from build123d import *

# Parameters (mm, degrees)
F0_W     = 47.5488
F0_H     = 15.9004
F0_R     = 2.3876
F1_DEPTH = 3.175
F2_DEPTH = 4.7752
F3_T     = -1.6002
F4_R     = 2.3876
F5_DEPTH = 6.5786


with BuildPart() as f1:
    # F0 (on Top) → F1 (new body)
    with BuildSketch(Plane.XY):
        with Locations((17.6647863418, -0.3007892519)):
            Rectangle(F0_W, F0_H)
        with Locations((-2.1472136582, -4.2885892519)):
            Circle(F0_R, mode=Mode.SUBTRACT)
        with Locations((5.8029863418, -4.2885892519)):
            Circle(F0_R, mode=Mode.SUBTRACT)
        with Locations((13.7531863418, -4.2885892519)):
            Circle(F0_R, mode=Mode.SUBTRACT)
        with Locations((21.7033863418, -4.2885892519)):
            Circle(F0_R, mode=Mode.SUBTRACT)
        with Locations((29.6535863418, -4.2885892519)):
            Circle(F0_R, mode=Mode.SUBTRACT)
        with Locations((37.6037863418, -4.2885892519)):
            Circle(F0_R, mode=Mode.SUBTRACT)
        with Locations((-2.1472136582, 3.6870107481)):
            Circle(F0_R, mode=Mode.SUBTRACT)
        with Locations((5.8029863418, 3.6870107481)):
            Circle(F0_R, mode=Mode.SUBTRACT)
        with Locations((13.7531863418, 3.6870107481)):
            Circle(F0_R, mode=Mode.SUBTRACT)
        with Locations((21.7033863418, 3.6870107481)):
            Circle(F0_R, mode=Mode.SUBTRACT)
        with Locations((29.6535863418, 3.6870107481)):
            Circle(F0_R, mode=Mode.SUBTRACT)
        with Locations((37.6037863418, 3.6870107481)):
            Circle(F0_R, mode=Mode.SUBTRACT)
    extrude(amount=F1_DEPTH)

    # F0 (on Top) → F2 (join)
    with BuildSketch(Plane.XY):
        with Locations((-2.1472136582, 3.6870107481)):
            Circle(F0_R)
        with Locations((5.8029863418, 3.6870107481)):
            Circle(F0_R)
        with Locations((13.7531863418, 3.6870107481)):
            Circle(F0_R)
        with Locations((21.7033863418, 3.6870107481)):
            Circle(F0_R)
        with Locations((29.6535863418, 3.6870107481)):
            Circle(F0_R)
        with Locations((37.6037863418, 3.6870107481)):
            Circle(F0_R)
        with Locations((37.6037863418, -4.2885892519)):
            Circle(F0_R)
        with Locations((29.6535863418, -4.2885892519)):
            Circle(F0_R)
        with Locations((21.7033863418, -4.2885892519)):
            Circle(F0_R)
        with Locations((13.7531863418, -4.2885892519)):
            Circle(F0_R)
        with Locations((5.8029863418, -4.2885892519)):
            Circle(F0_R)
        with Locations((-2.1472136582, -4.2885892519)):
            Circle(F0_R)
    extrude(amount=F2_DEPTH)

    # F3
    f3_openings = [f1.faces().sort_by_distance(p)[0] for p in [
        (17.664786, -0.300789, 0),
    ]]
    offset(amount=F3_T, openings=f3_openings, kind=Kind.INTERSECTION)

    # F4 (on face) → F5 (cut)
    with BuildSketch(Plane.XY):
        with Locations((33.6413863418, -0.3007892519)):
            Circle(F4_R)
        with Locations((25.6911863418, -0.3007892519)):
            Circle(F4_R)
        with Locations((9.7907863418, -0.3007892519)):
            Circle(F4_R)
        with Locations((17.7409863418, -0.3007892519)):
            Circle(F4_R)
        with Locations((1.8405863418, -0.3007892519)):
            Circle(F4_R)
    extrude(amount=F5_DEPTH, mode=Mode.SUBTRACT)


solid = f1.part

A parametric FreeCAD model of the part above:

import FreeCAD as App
import Part
import Sketcher
from FreeCAD import Vector
Q = App.Units.Quantity


def faces_at(feature, points):
    """Names of the faces that lie closest to the given points."""
    faces = feature.Shape.Faces
    near = lambda p: min(range(len(faces)), key=lambda i: faces[i].distToShape(Part.Vertex(*p))[0])
    return sorted({f"Face{near(p) + 1}" for p in points})


def add_polygon(sketch, points):
    """Adds a closed chain of lines whose ends are joined by coincident constraints."""
    first, n = sketch.GeometryCount, len(points)
    for a, b in zip(points, points[1:] + points[:1]):
        sketch.addGeometry(Part.LineSegment(App.Vector(*a, 0), App.Vector(*b, 0)), False)
    for i in range(n):
        sketch.addConstraint(Sketcher.Constraint("Coincident", first + i, 2, first + (i + 1) % n, 1))

doc = App.newDocument("Part")
body = doc.addObject("PartDesign::Body", "Body")

# Sketch on XY plane
sketch1 = body.newObject("Sketcher::SketchObject", "Sketch")
sketch1.AttachmentSupport = (doc.getObject("XY_Plane"), [""])
sketch1.MapMode = "FlatFace"
add_polygon(sketch1, [(-6.109614, 7.649411), (-6.109614, -8.250989), (41.439186, -8.250989), (41.439186, 7.649411)])  # lines 0-3
sketch1.addGeometry(Part.Circle(Vector(-2.147214, -4.288589, 0), Vector(0, 0, 1), 2.3876), False)  # 4
sketch1.addGeometry(Part.Circle(Vector(5.802986, -4.288589, 0), Vector(0, 0, 1), 2.3876), False)  # 5
sketch1.addGeometry(Part.Circle(Vector(13.753186, -4.288589, 0), Vector(0, 0, 1), 2.3876), False)  # 6
sketch1.addGeometry(Part.Circle(Vector(21.703386, -4.288589, 0), Vector(0, 0, 1), 2.3876), False)  # 7
sketch1.addGeometry(Part.Circle(Vector(29.653586, -4.288589, 0), Vector(0, 0, 1), 2.3876), False)  # 8
sketch1.addGeometry(Part.Circle(Vector(37.603786, -4.288589, 0), Vector(0, 0, 1), 2.3876), False)  # 9
sketch1.addGeometry(Part.Circle(Vector(-2.147214, 3.687011, 0), Vector(0, 0, 1), 2.3876), False)  # 10
sketch1.addGeometry(Part.Circle(Vector(5.802986, 3.687011, 0), Vector(0, 0, 1), 2.3876), False)  # 11
sketch1.addGeometry(Part.Circle(Vector(13.753186, 3.687011, 0), Vector(0, 0, 1), 2.3876), False)  # 12
sketch1.addGeometry(Part.Circle(Vector(21.703386, 3.687011, 0), Vector(0, 0, 1), 2.3876), False)  # 13
sketch1.addGeometry(Part.Circle(Vector(29.653586, 3.687011, 0), Vector(0, 0, 1), 2.3876), False)  # 14
sketch1.addGeometry(Part.Circle(Vector(37.603786, 3.687011, 0), Vector(0, 0, 1), 2.3876), False)  # 15
sketch1.addConstraint([
    Sketcher.Constraint("Vertical", 0),
    Sketcher.Constraint("Horizontal", 1),
    Sketcher.Constraint("Vertical", 2),
    Sketcher.Constraint("Horizontal", 3),
    Sketcher.Constraint("Equal", 4, 5),
    Sketcher.Constraint("Equal", 5, 6),
    Sketcher.Constraint("Equal", 6, 7),
    Sketcher.Constraint("Equal", 7, 8),
    Sketcher.Constraint("Equal", 8, 9),
    Sketcher.Constraint("Equal", 9, 10),
    Sketcher.Constraint("Equal", 10, 11),
    Sketcher.Constraint("Equal", 11, 12),
    Sketcher.Constraint("Equal", 12, 13),
    Sketcher.Constraint("Equal", 13, 14),
    Sketcher.Constraint("Equal", 14, 15),
    Sketcher.Constraint("Horizontal", 4, 3, 5, 3),
    Sketcher.Constraint("Horizontal", 5, 3, 6, 3),
    Sketcher.Constraint("Horizontal", 6, 3, 7, 3),
    Sketcher.Constraint("Horizontal", 7, 3, 8, 3),
    Sketcher.Constraint("Horizontal", 8, 3, 9, 3),
    Sketcher.Constraint("Horizontal", 10, 3, 11, 3),
    Sketcher.Constraint("Horizontal", 11, 3, 12, 3),
    Sketcher.Constraint("Horizontal", 12, 3, 13, 3),
    Sketcher.Constraint("Horizontal", 13, 3, 14, 3),
    Sketcher.Constraint("Horizontal", 14, 3, 15, 3),
    Sketcher.Constraint("Vertical", 4, 3, 10, 3),
    Sketcher.Constraint("Vertical", 5, 3, 11, 3),
    Sketcher.Constraint("Vertical", 6, 3, 12, 3),
    Sketcher.Constraint("Vertical", 7, 3, 13, 3),
    Sketcher.Constraint("Vertical", 8, 3, 14, 3),
    Sketcher.Constraint("Vertical", 9, 3, 15, 3),
    Sketcher.Constraint("Diameter", 4, Q("0.188 in")),
    Sketcher.Constraint("DistanceX", 1, 1, 1, 2, Q("1.872 in")),
    Sketcher.Constraint("DistanceY", 0, 2, 0, 1, Q("0.626 in")),
    Sketcher.Constraint("DistanceY", 0, 2, 10, 3, Q("0.47 in")),
    Sketcher.Constraint("DistanceY", 9, 3, 2, 2, Q("0.47 in")),
    Sketcher.Constraint("DistanceX", 4, 3, 5, 3, Q("0.313 in")),
    Sketcher.Constraint("DistanceX", 5, 3, 6, 3, Q("0.313 in")),
    Sketcher.Constraint("DistanceX", 6, 3, 7, 3, Q("0.313 in")),
    Sketcher.Constraint("DistanceX", 7, 3, 8, 3, Q("0.313 in")),
    Sketcher.Constraint("DistanceX", 8, 3, 9, 3, Q("0.313 in")),
    Sketcher.Constraint("DistanceX", 0, 2, 4, 3, Q("0.156 in")),
    Sketcher.Constraint("DistanceY", 4, 3, -1, 1, 4.288589),
    Sketcher.Constraint("DistanceX", 4, 3, -1, 1, 2.147214),
])
pad1 = body.newObject("PartDesign::Pad", "Pad")
pad1.Profile = sketch1
pad1.Length = Q("0.125 in")

# Sketch on XY plane
sketch2 = body.newObject("Sketcher::SketchObject", "Sketch001")
sketch2.AttachmentSupport = (doc.getObject("XY_Plane"), [""])
sketch2.MapMode = "FlatFace"
sketch2.addGeometry([
    Part.Circle(Vector(-2.147214, 3.687011, 0), Vector(0, 0, 1), 2.3876),  # 0
    Part.Circle(Vector(5.802986, 3.687011, 0), Vector(0, 0, 1), 2.3876),  # 1
    Part.Circle(Vector(13.753186, 3.687011, 0), Vector(0, 0, 1), 2.3876),  # 2
    Part.Circle(Vector(21.703386, 3.687011, 0), Vector(0, 0, 1), 2.3876),  # 3
    Part.Circle(Vector(29.653586, 3.687011, 0), Vector(0, 0, 1), 2.3876),  # 4
    Part.Circle(Vector(37.603786, 3.687011, 0), Vector(0, 0, 1), 2.3876),  # 5
    Part.Circle(Vector(37.603786, -4.288589, 0), Vector(0, 0, 1), 2.3876),  # 6
    Part.Circle(Vector(29.653586, -4.288589, 0), Vector(0, 0, 1), 2.3876),  # 7
    Part.Circle(Vector(21.703386, -4.288589, 0), Vector(0, 0, 1), 2.3876),  # 8
    Part.Circle(Vector(13.753186, -4.288589, 0), Vector(0, 0, 1), 2.3876),  # 9
    Part.Circle(Vector(5.802986, -4.288589, 0), Vector(0, 0, 1), 2.3876),  # 10
    Part.Circle(Vector(-2.147214, -4.288589, 0), Vector(0, 0, 1), 2.3876),  # 11
], False)
sketch2.addConstraint([
    Sketcher.Constraint("Equal", 0, 1),
    Sketcher.Constraint("Equal", 1, 2),
    Sketcher.Constraint("Equal", 2, 3),
    Sketcher.Constraint("Equal", 3, 4),
    Sketcher.Constraint("Equal", 4, 5),
    Sketcher.Constraint("Equal", 5, 6),
    Sketcher.Constraint("Equal", 6, 7),
    Sketcher.Constraint("Equal", 7, 8),
    Sketcher.Constraint("Equal", 8, 9),
    Sketcher.Constraint("Equal", 9, 10),
    Sketcher.Constraint("Equal", 10, 11),
    Sketcher.Constraint("Horizontal", 0, 3, 1, 3),
    Sketcher.Constraint("Horizontal", 1, 3, 2, 3),
    Sketcher.Constraint("Horizontal", 2, 3, 3, 3),
    Sketcher.Constraint("Horizontal", 3, 3, 4, 3),
    Sketcher.Constraint("Horizontal", 4, 3, 5, 3),
    Sketcher.Constraint("Horizontal", 6, 3, 7, 3),
    Sketcher.Constraint("Horizontal", 7, 3, 8, 3),
    Sketcher.Constraint("Horizontal", 8, 3, 9, 3),
    Sketcher.Constraint("Horizontal", 9, 3, 10, 3),
    Sketcher.Constraint("Horizontal", 10, 3, 11, 3),
    Sketcher.Constraint("Vertical", 5, 3, 6, 3),
    Sketcher.Constraint("Vertical", 4, 3, 7, 3),
    Sketcher.Constraint("Vertical", 3, 3, 8, 3),
    Sketcher.Constraint("Vertical", 2, 3, 9, 3),
    Sketcher.Constraint("Vertical", 1, 3, 10, 3),
    Sketcher.Constraint("Vertical", 0, 3, 11, 3),
    Sketcher.Constraint("Diameter", 0, Q("0.188 in")),
    Sketcher.Constraint("DistanceX", 0, 3, 1, 3, Q("0.313 in")),
    Sketcher.Constraint("DistanceX", 1, 3, 2, 3, Q("0.313 in")),
    Sketcher.Constraint("DistanceX", 2, 3, 3, 3, Q("0.313 in")),
    Sketcher.Constraint("DistanceX", 3, 3, 4, 3, Q("0.313 in")),
    Sketcher.Constraint("DistanceX", 4, 3, 5, 3, Q("0.313 in")),
    Sketcher.Constraint("DistanceY", 6, 3, 5, 3, Q("0.314 in")),
    Sketcher.Constraint("DistanceY", -1, 1, 0, 3, 3.687011),
    Sketcher.Constraint("DistanceX", 0, 3, -1, 1, 2.147214),
])
pad2 = body.newObject("PartDesign::Pad", "Pad001")
pad2.Profile = sketch2
pad2.Length = Q("0.188 in")
doc.recompute()

thickness = body.newObject("PartDesign::Thickness", "Thickness")
thickness.Base = (pad2, faces_at(pad2, [(17.665, -0.301, 0)]))
thickness.Value = Q("0.063 in")
thickness.Reversed = True
thickness.Join = "Intersection"

# Sketch on XY plane
sketch3 = body.newObject("Sketcher::SketchObject", "Sketch002")
sketch3.AttachmentSupport = (doc.getObject("XY_Plane"), [""])
sketch3.MapMode = "FlatFace"
sketch3.addGeometry([
    Part.Circle(Vector(33.641386, -0.300789, 0), Vector(0, 0, 1), 2.3876),  # 0
    Part.Circle(Vector(25.691186, -0.300789, 0), Vector(0, 0, 1), 2.3876),  # 1
    Part.Circle(Vector(9.790786, -0.300789, 0), Vector(0, 0, 1), 2.3876),  # 2
    Part.Circle(Vector(17.740986, -0.300789, 0), Vector(0, 0, 1), 2.3876),  # 3
    Part.Circle(Vector(1.840586, -0.300789, 0), Vector(0, 0, 1), 2.3876),  # 4
], False)
sketch3.addConstraint([
    Sketcher.Constraint("Equal", 0, 1),
    Sketcher.Constraint("Equal", 1, 2),
    Sketcher.Constraint("Equal", 2, 3),
    Sketcher.Constraint("Equal", 3, 4),
    Sketcher.Constraint("Horizontal", 0, 3, 1, 3),
    Sketcher.Constraint("Horizontal", 1, 3, 2, 3),
    Sketcher.Constraint("Horizontal", 2, 3, 3, 3),
    Sketcher.Constraint("Horizontal", 3, 3, 4, 3),
    Sketcher.Constraint("Diameter", 0, Q("0.188 in")),
    Sketcher.Constraint("DistanceX", 1, 3, 0, 3, Q("0.313 in")),
    Sketcher.Constraint("DistanceX", 2, 3, 1, 3, Q("0.626 in")),
    Sketcher.Constraint("DistanceX", 2, 3, 3, 3, Q("0.313 in")),
    Sketcher.Constraint("DistanceX", 4, 3, 2, 3, Q("0.313 in")),
    Sketcher.Constraint("DistanceY", 0, 3, -1, 1, 0.300789),
    Sketcher.Constraint("DistanceX", -1, 1, 0, 3, 33.641386),
])
pocket1 = body.newObject("PartDesign::Pocket", "Pocket")
pocket1.Profile = sketch3
pocket1.Length = Q("0.259 in")
pocket1.Reversed = True

doc.recompute()
